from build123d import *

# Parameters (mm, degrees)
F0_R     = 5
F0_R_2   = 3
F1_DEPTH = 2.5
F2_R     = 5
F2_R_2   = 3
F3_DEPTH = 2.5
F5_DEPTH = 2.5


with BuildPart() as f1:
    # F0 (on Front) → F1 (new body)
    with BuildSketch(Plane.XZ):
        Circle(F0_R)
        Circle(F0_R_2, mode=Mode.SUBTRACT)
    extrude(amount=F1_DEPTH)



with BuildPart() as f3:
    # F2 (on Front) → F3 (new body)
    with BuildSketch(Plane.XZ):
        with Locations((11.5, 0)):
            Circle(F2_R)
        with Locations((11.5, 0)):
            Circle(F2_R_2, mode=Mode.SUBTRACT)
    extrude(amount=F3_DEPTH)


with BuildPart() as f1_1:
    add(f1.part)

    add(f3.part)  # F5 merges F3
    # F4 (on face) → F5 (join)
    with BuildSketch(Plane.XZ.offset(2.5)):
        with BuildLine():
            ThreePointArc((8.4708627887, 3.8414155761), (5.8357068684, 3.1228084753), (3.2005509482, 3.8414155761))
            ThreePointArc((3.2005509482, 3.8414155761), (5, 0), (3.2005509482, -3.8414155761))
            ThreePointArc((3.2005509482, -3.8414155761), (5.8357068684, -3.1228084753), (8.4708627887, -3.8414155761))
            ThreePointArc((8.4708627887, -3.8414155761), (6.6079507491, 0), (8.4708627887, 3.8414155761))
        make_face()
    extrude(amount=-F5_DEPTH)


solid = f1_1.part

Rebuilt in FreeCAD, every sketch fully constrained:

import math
import FreeCAD as App
import Part
import Sketcher

V = App.Vector
Q = App.Units.Quantity

doc = App.newDocument("Part")
body = doc.addObject("PartDesign::Body", "Body")

sketch1 = body.newObject("Sketcher::SketchObject", "Sketch")
sketch1.AttachmentSupport = (doc.getObject("XZ_Plane"), [""])
sketch1.MapMode = "FlatFace"
sketch1.addGeometry(Part.Circle(V(0, 0, 0), V(0, 0, 1), 5), False)
sketch1.addGeometry(Part.Circle(V(0, 0, 0), V(0, 0, 1), 3), False)
sketch1.addConstraint(Sketcher.Constraint("Coincident", 0, 3, -1, 1))
sketch1.addConstraint(Sketcher.Constraint("Coincident", 1, 3, -1, 1))
sketch1.addConstraint(Sketcher.Constraint("Diameter", 0, Q("10 mm")))
sketch1.addConstraint(Sketcher.Constraint("Diameter", 1, Q("6 mm")))
pad1 = body.newObject("PartDesign::Pad", "Pad")
pad1.Profile = sketch1
pad1.Length = 2.5
body2 = doc.addObject("PartDesign::Body", "Body001")

sketch2 = body2.newObject("Sketcher::SketchObject", "Sketch001")
sketch2.AttachmentSupport = (doc.getObject("XZ_Plane001"), [""])
sketch2.MapMode = "FlatFace"
sketch2.addGeometry(Part.Circle(V(11.5, 0, 0), V(0, 0, 1), 5), False)
sketch2.addGeometry(Part.Circle(V(11.5, 0, 0), V(0, 0, 1), 3), False)
sketch2.addConstraint(Sketcher.Constraint("Coincident", 1, 3, 0, 3))
sketch2.addConstraint(Sketcher.Constraint("PointOnObject", 0, 3, -1))
sketch2.addConstraint(Sketcher.Constraint("Diameter", 0, Q("10 mm")))
sketch2.addConstraint(Sketcher.Constraint("Diameter", 1, Q("6 mm")))
sketch2.addConstraint(Sketcher.Constraint("DistanceX", -1, 1, 0, 3, Q("11.5 mm")))
pad2 = body2.newObject("PartDesign::Pad", "Pad001")
pad2.Profile = sketch2
pad2.Length = 2.5
body.AllowCompound = True
doc.recompute()

boolean = body.newObject("PartDesign::Boolean", "Boolean")
boolean.Type = "Fuse"
boolean.addObjects([body2])

sketch3 = body.newObject("Sketcher::SketchObject", "Sketch002")
sketch3.AttachmentSupport = (doc.getObject("XZ_Plane"), [""])
sketch3.MapMode = "FlatFace"
sketch3.AttachmentOffset = App.Placement(V(0, 0, 2.5), App.Rotation())
sketch3.addGeometry(Part.ArcOfCircle(Part.Circle(V(5.8, 8.3, 0), V(0, 0, 1), 5.2), math.radians(-121), math.radians(-59)), False)
sketch3.addGeometry(Part.ArcOfCircle(Part.Circle(V(0, 0, 0), V(0, 0, 1), 5), math.radians(-50), math.radians(50)), False)
sketch3.addGeometry(Part.ArcOfCircle(Part.Circle(V(5.8, -8.3, 0), V(0, 0, 1), 5.2), math.radians(59), math.radians(121)), False)
sketch3.addGeometry(Part.ArcOfCircle(Part.Circle(V(11.5, 0, 0), V(0, 0, 1), 4.9), math.radians(128), math.radians(232)), False)
sketch3.addConstraint(Sketcher.Constraint("Coincident", 0, 1, 1, 2))
sketch3.addConstraint(Sketcher.Constraint("Coincident", 1, 1, 2, 2))
sketch3.addConstraint(Sketcher.Constraint("Coincident", 2, 1, 3, 2))
sketch3.addConstraint(Sketcher.Constraint("Coincident", 3, 1, 0, 2))
sketch3.addConstraint(Sketcher.Constraint("Coincident", 1, 3, -1, 1))
sketch3.addConstraint(Sketcher.Constraint("Equal", 0, 2))
sketch3.addConstraint(Sketcher.Constraint("Symmetric", 0, 3, 2, 3, -1))
sketch3.addConstraint(Sketcher.Constraint("PointOnObject", 3, 3, -1))
sketch3.addConstraint(Sketcher.Constraint("Horizontal", 1, 1, 2, 1))
sketch3.addConstraint(Sketcher.Constraint("Radius", 1, Q("5 mm")))
sketch3.addConstraint(Sketcher.Constraint("DistanceX", -1, 1, 3, 3, Q("11.5 mm")))
sketch3.addConstraint(Sketcher.Constraint("Radius", 3, Q("4.892049 mm")))
sketch3.addConstraint(Sketcher.Constraint("Radius", 0, Q("5.190905 mm")))
sketch3.addConstraint(Sketcher.Constraint("DistanceY", 0, 1, 0, 3, Q("4.472298 mm")))
pad3 = body.newObject("PartDesign::Pad", "Pad002")
pad3.Profile = sketch3
pad3.Length = 2.5
pad3.Reversed = True

doc.recompute()
